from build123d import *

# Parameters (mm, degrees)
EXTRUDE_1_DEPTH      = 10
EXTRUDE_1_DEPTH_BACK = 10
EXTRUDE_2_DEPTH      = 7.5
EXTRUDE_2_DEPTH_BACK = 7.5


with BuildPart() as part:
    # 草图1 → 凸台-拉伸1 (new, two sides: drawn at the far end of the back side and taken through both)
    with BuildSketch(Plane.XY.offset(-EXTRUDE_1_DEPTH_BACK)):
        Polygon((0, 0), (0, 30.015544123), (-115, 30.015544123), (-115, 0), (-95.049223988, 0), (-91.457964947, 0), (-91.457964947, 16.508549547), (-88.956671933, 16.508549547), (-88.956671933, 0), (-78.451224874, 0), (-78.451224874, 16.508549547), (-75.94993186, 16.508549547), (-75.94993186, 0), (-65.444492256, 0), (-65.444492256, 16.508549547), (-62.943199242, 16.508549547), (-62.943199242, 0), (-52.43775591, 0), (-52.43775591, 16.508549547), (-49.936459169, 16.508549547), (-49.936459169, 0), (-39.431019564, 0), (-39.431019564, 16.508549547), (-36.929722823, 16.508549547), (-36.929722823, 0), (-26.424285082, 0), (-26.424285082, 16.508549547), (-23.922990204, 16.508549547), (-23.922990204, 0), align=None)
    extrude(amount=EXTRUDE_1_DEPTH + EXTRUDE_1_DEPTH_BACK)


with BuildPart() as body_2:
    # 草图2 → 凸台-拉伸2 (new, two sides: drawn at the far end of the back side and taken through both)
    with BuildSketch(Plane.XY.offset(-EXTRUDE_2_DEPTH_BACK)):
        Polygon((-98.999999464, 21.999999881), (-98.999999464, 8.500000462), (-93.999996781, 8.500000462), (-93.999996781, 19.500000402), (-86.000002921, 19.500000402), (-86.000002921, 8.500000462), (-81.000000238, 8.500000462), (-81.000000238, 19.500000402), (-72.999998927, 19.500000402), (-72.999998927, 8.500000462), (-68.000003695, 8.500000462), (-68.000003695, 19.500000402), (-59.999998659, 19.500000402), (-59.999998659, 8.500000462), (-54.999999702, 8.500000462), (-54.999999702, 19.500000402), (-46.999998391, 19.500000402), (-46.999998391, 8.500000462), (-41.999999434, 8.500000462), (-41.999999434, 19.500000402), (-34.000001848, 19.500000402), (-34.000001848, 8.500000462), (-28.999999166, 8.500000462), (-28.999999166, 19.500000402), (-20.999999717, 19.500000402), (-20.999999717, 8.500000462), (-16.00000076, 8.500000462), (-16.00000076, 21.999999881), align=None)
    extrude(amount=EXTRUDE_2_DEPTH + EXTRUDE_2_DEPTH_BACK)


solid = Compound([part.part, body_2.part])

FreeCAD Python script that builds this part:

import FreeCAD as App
import Part
import Sketcher
from FreeCAD import Vector

doc = App.newDocument("Part")
params = doc.addObject("Spreadsheet::Sheet", "Params")
for row, (alias, value) in enumerate([
    ("sketch1_width", "115 mm"),
    ("pad1_length", "10 mm"),
    ("pad1_length2", "10 mm"),
    ("sketch2_width", "8.000001 mm"),
    ("sketch2_width2", "4.999999 mm"),
    ("sketch2_width3", "7.999999 mm"),
    ("sketch2_width4", "82.999999 mm"),
    ("sketch2_height", "11 mm"),
    ("pad2_length", "7.5 mm"),
    ("pad2_length2", "7.5 mm"),
], start=1):
    params.set(f"A{row}", alias)
    params.set(f"B{row}", "=" + value)
    params.setAlias(f"B{row}", alias)

body = doc.addObject("PartDesign::Body", "Body")

# Sketch on XY plane
sketch1 = doc.addObject("Sketcher::SketchObject", "Sketch")
body.addObject(sketch1)
sketch1.AttachmentSupport = (doc.XY_Plane, [""])
sketch1.MapMode = "FlatFace"
sketch1.addGeometry(Part.LineSegment(Vector(0, 0, 0), Vector(0, 30, 0)), False)
sketch1.addGeometry(Part.LineSegment(Vector(0, 30, 0), Vector(-115, 30, 0)), False)
sketch1.addGeometry(Part.LineSegment(Vector(-115, 30, 0), Vector(-115, 0, 0)), False)
sketch1.addGeometry(Part.LineSegment(Vector(-115, 0, 0), Vector(-91.5, 0, 0)), False)
sketch1.addGeometry(Part.LineSegment(Vector(-91.5, 0, 0), Vector(-91.5, 16.5, 0)), False)
sketch1.addGeometry(Part.LineSegment(Vector(-91.5, 16.5, 0), Vector(-89, 16.5, 0)), False)
sketch1.addGeometry(Part.LineSegment(Vector(-89, 16.5, 0), Vector(-89, 0, 0)), False)
sketch1.addGeometry(Part.LineSegment(Vector(-89, 0, 0), Vector(-78.5, 0, 0)), False)
sketch1.addGeometry(Part.LineSegment(Vector(-78.5, 0, 0), Vector(-78.5, 16.5, 0)), False)
sketch1.addGeometry(Part.LineSegment(Vector(-78.5, 16.5, 0), Vector(-75.9, 16.5, 0)), False)
sketch1.addGeometry(Part.LineSegment(Vector(-75.9, 16.5, 0), Vector(-75.9, 0, 0)), False)
sketch1.addGeometry(Part.LineSegment(Vector(-75.9, 0, 0), Vector(-65.4, 0, 0)), False)
sketch1.addGeometry(Part.LineSegment(Vector(-65.4, 0, 0), Vector(-65.4, 16.5, 0)), False)
sketch1.addGeometry(Part.LineSegment(Vector(-65.4, 16.5, 0), Vector(-62.9, 16.5, 0)), False)
sketch1.addGeometry(Part.LineSegment(Vector(-62.9, 16.5, 0), Vector(-62.9, 0, 0)), False)
sketch1.addGeometry(Part.LineSegment(Vector(-62.9, 0, 0), Vector(-52.4, 0, 0)), False)
sketch1.addGeometry(Part.LineSegment(Vector(-52.4, 0, 0), Vector(-52.4, 16.5, 0)), False)
sketch1.addGeometry(Part.LineSegment(Vector(-52.4, 16.5, 0), Vector(-49.9, 16.5, 0)), False)
sketch1.addGeometry(Part.LineSegment(Vector(-49.9, 16.5, 0), Vector(-49.9, 0, 0)), False)
sketch1.addGeometry(Part.LineSegment(Vector(-49.9, 0, 0), Vector(-39.4, 0, 0)), False)
sketch1.addGeometry(Part.LineSegment(Vector(-39.4, 0, 0), Vector(-39.4, 16.5, 0)), False)
sketch1.addGeometry(Part.LineSegment(Vector(-39.4, 16.5, 0), Vector(-36.9, 16.5, 0)), False)
sketch1.addGeometry(Part.LineSegment(Vector(-36.9, 16.5, 0), Vector(-36.9, 0, 0)), False)
sketch1.addGeometry(Part.LineSegment(Vector(-36.9, 0, 0), Vector(-26.4, 0, 0)), False)
sketch1.addGeometry(Part.LineSegment(Vector(-26.4, 0, 0), Vector(-26.4, 16.5, 0)), False)
sketch1.addGeometry(Part.LineSegment(Vector(-26.4, 16.5, 0), Vector(-23.9, 16.5, 0)), False)
sketch1.addGeometry(Part.LineSegment(Vector(-23.9, 16.5, 0), Vector(-23.9, 0, 0)), False)
sketch1.addGeometry(Part.LineSegment(Vector(-23.9, 0, 0), Vector(0, 0, 0)), False)
sketch1.addConstraint(Sketcher.Constraint("Coincident", 0, 2, 1, 1))
sketch1.addConstraint(Sketcher.Constraint("Coincident", 1, 2, 2, 1))
sketch1.addConstraint(Sketcher.Constraint("Coincident", 2, 2, 3, 1))
sketch1.addConstraint(Sketcher.Constraint("Coincident", 3, 2, 4, 1))
sketch1.addConstraint(Sketcher.Constraint("Coincident", 4, 2, 5, 1))
sketch1.addConstraint(Sketcher.Constraint("Coincident", 5, 2, 6, 1))
sketch1.addConstraint(Sketcher.Constraint("Coincident", 6, 2, 7, 1))
sketch1.addConstraint(Sketcher.Constraint("Coincident", 7, 2, 8, 1))
sketch1.addConstraint(Sketcher.Constraint("Coincident", 8, 2, 9, 1))
sketch1.addConstraint(Sketcher.Constraint("Coincident", 9, 2, 10, 1))
sketch1.addConstraint(Sketcher.Constraint("Coincident", 10, 2, 11, 1))
sketch1.addConstraint(Sketcher.Constraint("Coincident", 11, 2, 12, 1))
sketch1.addConstraint(Sketcher.Constraint("Coincident", 12, 2, 13, 1))
sketch1.addConstraint(Sketcher.Constraint("Coincident", 13, 2, 14, 1))
sketch1.addConstraint(Sketcher.Constraint("Coincident", 14, 2, 15, 1))
sketch1.addConstraint(Sketcher.Constraint("Coincident", 15, 2, 16, 1))
sketch1.addConstraint(Sketcher.Constraint("Coincident", 16, 2, 17, 1))
sketch1.addConstraint(Sketcher.Constraint("Coincident", 17, 2, 18, 1))
sketch1.addConstraint(Sketcher.Constraint("Coincident", 18, 2, 19, 1))
sketch1.addConstraint(Sketcher.Constraint("Coincident", 19, 2, 20, 1))
sketch1.addConstraint(Sketcher.Constraint("Coincident", 20, 2, 21, 1))
sketch1.addConstraint(Sketcher.Constraint("Coincident", 21, 2, 22, 1))
sketch1.addConstraint(Sketcher.Constraint("Coincident", 22, 2, 23, 1))
sketch1.addConstraint(Sketcher.Constraint("Coincident", 23, 2, 24, 1))
sketch1.addConstraint(Sketcher.Constraint("Coincident", 24, 2, 25, 1))
sketch1.addConstraint(Sketcher.Constraint("Coincident", 25, 2, 26, 1))
sketch1.addConstraint(Sketcher.Constraint("Coincident", 26, 2, 27, 1))
sketch1.addConstraint(Sketcher.Constraint("Coincident", 27, 2, 0, 1))
sketch1.addConstraint(Sketcher.Constraint("Vertical", 0))
sketch1.addConstraint(Sketcher.Constraint("Horizontal", 1))
sketch1.addConstraint(Sketcher.Constraint("Vertical", 2))
sketch1.addConstraint(Sketcher.Constraint("Horizontal", 3))
sketch1.addConstraint(Sketcher.Constraint("Vertical", 4))
sketch1.addConstraint(Sketcher.Constraint("Horizontal", 5))
sketch1.addConstraint(Sketcher.Constraint("Vertical", 6))
sketch1.addConstraint(Sketcher.Constraint("Horizontal", 7))
sketch1.addConstraint(Sketcher.Constraint("Vertical", 8))
sketch1.addConstraint(Sketcher.Constraint("Horizontal", 9))
sketch1.addConstraint(Sketcher.Constraint("Vertical", 10))
sketch1.addConstraint(Sketcher.Constraint("Horizontal", 11))
sketch1.addConstraint(Sketcher.Constraint("Vertical", 12))
sketch1.addConstraint(Sketcher.Constraint("Horizontal", 13))
sketch1.addConstraint(Sketcher.Constraint("Vertical", 14))
sketch1.addConstraint(Sketcher.Constraint("Horizontal", 15))
sketch1.addConstraint(Sketcher.Constraint("Vertical", 16))
sketch1.addConstraint(Sketcher.Constraint("Horizontal", 17))
sketch1.addConstraint(Sketcher.Constraint("Vertical", 18))
sketch1.addConstraint(Sketcher.Constraint("Horizontal", 19))
sketch1.addConstraint(Sketcher.Constraint("Vertical", 20))
sketch1.addConstraint(Sketcher.Constraint("Horizontal", 21))
sketch1.addConstraint(Sketcher.Constraint("Vertical", 22))
sketch1.addConstraint(Sketcher.Constraint("Horizontal", 23))
sketch1.addConstraint(Sketcher.Constraint("Vertical", 24))
sketch1.addConstraint(Sketcher.Constraint("Horizontal", 25))
sketch1.addConstraint(Sketcher.Constraint("Vertical", 26))
sketch1.addConstraint(Sketcher.Constraint("Horizontal", 27))
sketch1.addConstraint(Sketcher.Constraint("Coincident", 27, 2, -1, 1))
sketch1.addConstraint(Sketcher.Constraint("PointOnObject", 2, 2, -1))
sketch1.addConstraint(Sketcher.Constraint("PointOnObject", 6, 2, -1))
sketch1.addConstraint(Sketcher.Constraint("PointOnObject", 10, 2, -1))
sketch1.addConstraint(Sketcher.Constraint("PointOnObject", 14, 2, -1))
sketch1.addConstraint(Sketcher.Constraint("PointOnObject", 18, 2, -1))
sketch1.addConstraint(Sketcher.Constraint("PointOnObject", 22, 2, -1))
sketch1.addConstraint(Sketcher.Constraint("Horizontal", 5, 2, 8, 2))
sketch1.addConstraint(Sketcher.Constraint("Horizontal", 9, 2, 12, 2))
sketch1.addConstraint(Sketcher.Constraint("Horizontal", 13, 2, 16, 2))
sketch1.addConstraint(Sketcher.Constraint("Horizontal", 17, 2, 20, 2))
sketch1.addConstraint(Sketcher.Constraint("Horizontal", 21, 2, 24, 2))
sketch1.addConstraint(Sketcher.Constraint("Equal", 5, 9))
sketch1.addConstraint(Sketcher.Constraint("Equal", 9, 13))
sketch1.addConstraint(Sketcher.Constraint("Equal", 11, 19))
sketch1.addConstraint(Sketcher.Constraint("Equal", 17, 21))
sketch1.addConstraint(Sketcher.Constraint("Equal", 19, 23))
sketch1.addConstraint(Sketcher.Constraint("Equal", 21, 25))
sketch1.addConstraint(Sketcher.Constraint("DistanceX", 1, 2, 1, 1, 115.0))
sketch1.addConstraint(Sketcher.Constraint("DistanceX", 11, 1, 11, 2, 10.50544))
sketch1.addConstraint(Sketcher.Constraint("DistanceX", 27, 1, 27, 2, 23.92299))
sketch1.addConstraint(Sketcher.Constraint("DistanceY", 4, 1, 4, 2, 16.50855))
sketch1.addConstraint(Sketcher.Constraint("DistanceX", 13, 2, -1, 1, 62.943199))
sketch1.addConstraint(Sketcher.Constraint("DistanceX", 3, 1, 3, 2, 23.542035))
sketch1.addConstraint(Sketcher.Constraint("DistanceX", 5, 1, 5, 2, 2.501293))
sketch1.addConstraint(Sketcher.Constraint("DistanceX", 15, 1, 15, 2, 10.505443))
sketch1.addConstraint(Sketcher.Constraint("DistanceY", 0, 1, 0, 2, 30.015544))
sketch1.setExpression("Constraints[74]", "Params.sketch1_width")
pad1 = doc.addObject("PartDesign::Pad", "Pad")
body.addObject(pad1)
pad1.Profile = sketch1
pad1.Type = "TwoLengths"
pad1.setExpression("Length", "Params.pad1_length")
pad1.setExpression("Length2", "Params.pad1_length2")
body2 = doc.addObject("PartDesign::Body", "Body001")

# Sketch on XY plane
sketch2 = doc.addObject("Sketcher::SketchObject", "Sketch001")
body2.addObject(sketch2)
sketch2.AttachmentSupport = (doc.getObject("XY_Plane001"), [""])
sketch2.MapMode = "FlatFace"
sketch2.addGeometry(Part.LineSegment(Vector(-99, 22, 0), Vector(-99, 8.5, 0)), False)
sketch2.addGeometry(Part.LineSegment(Vector(-99, 8.5, 0), Vector(-94, 8.5, 0)), False)
sketch2.addGeometry(Part.LineSegment(Vector(-94, 8.5, 0), Vector(-94, 19.5, 0)), False)
sketch2.addGeometry(Part.LineSegment(Vector(-94, 19.5, 0), Vector(-86, 19.5, 0)), False)
sketch2.addGeometry(Part.LineSegment(Vector(-86, 19.5, 0), Vector(-86, 8.5, 0)), False)
sketch2.addGeometry(Part.LineSegment(Vector(-86, 8.5, 0), Vector(-81, 8.5, 0)), False)
sketch2.addGeometry(Part.LineSegment(Vector(-81, 8.5, 0), Vector(-81, 19.5, 0)), False)
sketch2.addGeometry(Part.LineSegment(Vector(-81, 19.5, 0), Vector(-73, 19.5, 0)), False)
sketch2.addGeometry(Part.LineSegment(Vector(-73, 19.5, 0), Vector(-73, 8.5, 0)), False)
sketch2.addGeometry(Part.LineSegment(Vector(-73, 8.5, 0), Vector(-68, 8.5, 0)), False)
sketch2.addGeometry(Part.LineSegment(Vector(-68, 8.5, 0), Vector(-68, 19.5, 0)), False)
sketch2.addGeometry(Part.LineSegment(Vector(-68, 19.5, 0), Vector(-60, 19.5, 0)), False)
sketch2.addGeometry(Part.LineSegment(Vector(-60, 19.5, 0), Vector(-60, 8.5, 0)), False)
sketch2.addGeometry(Part.LineSegment(Vector(-60, 8.5, 0), Vector(-55, 8.5, 0)), False)
sketch2.addGeometry(Part.LineSegment(Vector(-55, 8.5, 0), Vector(-55, 19.5, 0)), False)
sketch2.addGeometry(Part.LineSegment(Vector(-55, 19.5, 0), Vector(-47, 19.5, 0)), False)
sketch2.addGeometry(Part.LineSegment(Vector(-47, 19.5, 0), Vector(-47, 8.5, 0)), False)
sketch2.addGeometry(Part.LineSegment(Vector(-47, 8.5, 0), Vector(-42, 8.5, 0)), False)
sketch2.addGeometry(Part.LineSegment(Vector(-42, 8.5, 0), Vector(-42, 19.5, 0)), False)
sketch2.addGeometry(Part.LineSegment(Vector(-42, 19.5, 0), Vector(-34, 19.5, 0)), False)
sketch2.addGeometry(Part.LineSegment(Vector(-34, 19.5, 0), Vector(-34, 8.5, 0)), False)
sketch2.addGeometry(Part.LineSegment(Vector(-34, 8.5, 0), Vector(-29, 8.5, 0)), False)
sketch2.addGeometry(Part.LineSegment(Vector(-29, 8.5, 0), Vector(-29, 19.5, 0)), False)
sketch2.addGeometry(Part.LineSegment(Vector(-29, 19.5, 0), Vector(-21, 19.5, 0)), False)
sketch2.addGeometry(Part.LineSegment(Vector(-21, 19.5, 0), Vector(-21, 8.5, 0)), False)
sketch2.addGeometry(Part.LineSegment(Vector(-21, 8.5, 0), Vector(-16, 8.5, 0)), False)
sketch2.addGeometry(Part.LineSegment(Vector(-16, 8.5, 0), Vector(-16, 22, 0)), False)
sketch2.addGeometry(Part.LineSegment(Vector(-16, 22, 0), Vector(-99, 22, 0)), False)
sketch2.addConstraint(Sketcher.Constraint("Coincident", 0, 2, 1, 1))
sketch2.addConstraint(Sketcher.Constraint("Coincident", 1, 2, 2, 1))
sketch2.addConstraint(Sketcher.Constraint("Coincident", 2, 2, 3, 1))
sketch2.addConstraint(Sketcher.Constraint("Coincident", 3, 2, 4, 1))
sketch2.addConstraint(Sketcher.Constraint("Coincident", 4, 2, 5, 1))
sketch2.addConstraint(Sketcher.Constraint("Coincident", 5, 2, 6, 1))
sketch2.addConstraint(Sketcher.Constraint("Coincident", 6, 2, 7, 1))
sketch2.addConstraint(Sketcher.Constraint("Coincident", 7, 2, 8, 1))
sketch2.addConstraint(Sketcher.Constraint("Coincident", 8, 2, 9, 1))
sketch2.addConstraint(Sketcher.Constraint("Coincident", 9, 2, 10, 1))
sketch2.addConstraint(Sketcher.Constraint("Coincident", 10, 2, 11, 1))
sketch2.addConstraint(Sketcher.Constraint("Coincident", 11, 2, 12, 1))
sketch2.addConstraint(Sketcher.Constraint("Coincident", 12, 2, 13, 1))
sketch2.addConstraint(Sketcher.Constraint("Coincident", 13, 2, 14, 1))
sketch2.addConstraint(Sketcher.Constraint("Coincident", 14, 2, 15, 1))
sketch2.addConstraint(Sketcher.Constraint("Coincident", 15, 2, 16, 1))
sketch2.addConstraint(Sketcher.Constraint("Coincident", 16, 2, 17, 1))
sketch2.addConstraint(Sketcher.Constraint("Coincident", 17, 2, 18, 1))
sketch2.addConstraint(Sketcher.Constraint("Coincident", 18, 2, 19, 1))
sketch2.addConstraint(Sketcher.Constraint("Coincident", 19, 2, 20, 1))
sketch2.addConstraint(Sketcher.Constraint("Coincident", 20, 2, 21, 1))
sketch2.addConstraint(Sketcher.Constraint("Coincident", 21, 2, 22, 1))
sketch2.addConstraint(Sketcher.Constraint("Coincident", 22, 2, 23, 1))
sketch2.addConstraint(Sketcher.Constraint("Coincident", 23, 2, 24, 1))
sketch2.addConstraint(Sketcher.Constraint("Coincident", 24, 2, 25, 1))
sketch2.addConstraint(Sketcher.Constraint("Coincident", 25, 2, 26, 1))
sketch2.addConstraint(Sketcher.Constraint("Coincident", 26, 2, 27, 1))
sketch2.addConstraint(Sketcher.Constraint("Coincident", 27, 2, 0, 1))
sketch2.addConstraint(Sketcher.Constraint("Vertical", 0))
sketch2.addConstraint(Sketcher.Constraint("Horizontal", 1))
sketch2.addConstraint(Sketcher.Constraint("Vertical", 2))
sketch2.addConstraint(Sketcher.Constraint("Horizontal", 3))
sketch2.addConstraint(Sketcher.Constraint("Vertical", 4))
sketch2.addConstraint(Sketcher.Constraint("Horizontal", 5))
sketch2.addConstraint(Sketcher.Constraint("Vertical", 6))
sketch2.addConstraint(Sketcher.Constraint("Horizontal", 7))
sketch2.addConstraint(Sketcher.Constraint("Vertical", 8))
sketch2.addConstraint(Sketcher.Constraint("Horizontal", 9))
sketch2.addConstraint(Sketcher.Constraint("Vertical", 10))
sketch2.addConstraint(Sketcher.Constraint("Horizontal", 11))
sketch2.addConstraint(Sketcher.Constraint("Vertical", 12))
sketch2.addConstraint(Sketcher.Constraint("Horizontal", 13))
sketch2.addConstraint(Sketcher.Constraint("Vertical", 14))
sketch2.addConstraint(Sketcher.Constraint("Horizontal", 15))
sketch2.addConstraint(Sketcher.Constraint("Vertical", 16))
sketch2.addConstraint(Sketcher.Constraint("Horizontal", 17))
sketch2.addConstraint(Sketcher.Constraint("Vertical", 18))
sketch2.addConstraint(Sketcher.Constraint("Horizontal", 19))
sketch2.addConstraint(Sketcher.Constraint("Vertical", 20))
sketch2.addConstraint(Sketcher.Constraint("Horizontal", 21))
sketch2.addConstraint(Sketcher.Constraint("Vertical", 22))
sketch2.addConstraint(Sketcher.Constraint("Horizontal", 23))
sketch2.addConstraint(Sketcher.Constraint("Vertical", 24))
sketch2.addConstraint(Sketcher.Constraint("Horizontal", 25))
sketch2.addConstraint(Sketcher.Constraint("Vertical", 26))
sketch2.addConstraint(Sketcher.Constraint("Horizontal", 27))
sketch2.addConstraint(Sketcher.Constraint("Horizontal", 1, 2, 4, 2))
sketch2.addConstraint(Sketcher.Constraint("Horizontal", 3, 2, 6, 2))
sketch2.addConstraint(Sketcher.Constraint("Horizontal", 5, 2, 8, 2))
sketch2.addConstraint(Sketcher.Constraint("Horizontal", 7, 2, 10, 2))
sketch2.addConstraint(Sketcher.Constraint("Horizontal", 9, 2, 12, 2))
sketch2.addConstraint(Sketcher.Constraint("Horizontal", 11, 2, 14, 2))
sketch2.addConstraint(Sketcher.Constraint("Horizontal", 13, 2, 16, 2))
sketch2.addConstraint(Sketcher.Constraint("Horizontal", 15, 2, 18, 2))
sketch2.addConstraint(Sketcher.Constraint("Horizontal", 17, 2, 20, 2))
sketch2.addConstraint(Sketcher.Constraint("Horizontal", 19, 2, 22, 2))
sketch2.addConstraint(Sketcher.Constraint("Horizontal", 21, 2, 24, 2))
sketch2.addConstraint(Sketcher.Constraint("Equal", 1, 5))
sketch2.addConstraint(Sketcher.Constraint("Equal", 7, 15))
sketch2.addConstraint(Sketcher.Constraint("Equal", 13, 17))
sketch2.addConstraint(Sketcher.Constraint("Equal", 5, 21))
sketch2.addConstraint(Sketcher.Constraint("Equal", 19, 23))
sketch2.addConstraint(Sketcher.Constraint("Equal", 17, 25))
sketch2.addConstraint(Sketcher.Constraint("DistanceX", 7, 1, 7, 2, 8.000001))
sketch2.addConstraint(Sketcher.Constraint("DistanceX", 13, 1, 13, 2, 4.999999))
sketch2.addConstraint(Sketcher.Constraint("DistanceX", 23, 1, 23, 2, 7.999999))
sketch2.addConstraint(Sketcher.Constraint("DistanceX", 27, 2, 27, 1, 82.999999))
sketch2.addConstraint(Sketcher.Constraint("DistanceY", 2, 1, 2, 2, 11.0))
sketch2.addConstraint(Sketcher.Constraint("DistanceY", 0, 2, 0, 1, 13.499999))
sketch2.addConstraint(Sketcher.Constraint("DistanceX", 0, 2, -1, 1, 98.999999))
sketch2.addConstraint(Sketcher.Constraint("DistanceX", 5, 2, -1, 1, 81.0))
sketch2.addConstraint(Sketcher.Constraint("DistanceX", 11, 2, -1, 1, 59.999999))
sketch2.addConstraint(Sketcher.Constraint("DistanceY", -1, 1, 26, 2, 22.0))
sketch2.addConstraint(Sketcher.Constraint("DistanceX", 4, 2, 9, 2, 17.999999))
sketch2.setExpression("Constraints[73]", "Params.sketch2_width")
sketch2.setExpression("Constraints[74]", "Params.sketch2_width2")
sketch2.setExpression("Constraints[75]", "Params.sketch2_width3")
sketch2.setExpression("Constraints[76]", "Params.sketch2_width4")
sketch2.setExpression("Constraints[77]", "Params.sketch2_height")
pad2 = doc.addObject("PartDesign::Pad", "Pad001")
body2.addObject(pad2)
pad2.Profile = sketch2
pad2.Type = "TwoLengths"
pad2.setExpression("Length", "Params.pad2_length")
pad2.setExpression("Length2", "Params.pad2_length2")

doc.recompute()
